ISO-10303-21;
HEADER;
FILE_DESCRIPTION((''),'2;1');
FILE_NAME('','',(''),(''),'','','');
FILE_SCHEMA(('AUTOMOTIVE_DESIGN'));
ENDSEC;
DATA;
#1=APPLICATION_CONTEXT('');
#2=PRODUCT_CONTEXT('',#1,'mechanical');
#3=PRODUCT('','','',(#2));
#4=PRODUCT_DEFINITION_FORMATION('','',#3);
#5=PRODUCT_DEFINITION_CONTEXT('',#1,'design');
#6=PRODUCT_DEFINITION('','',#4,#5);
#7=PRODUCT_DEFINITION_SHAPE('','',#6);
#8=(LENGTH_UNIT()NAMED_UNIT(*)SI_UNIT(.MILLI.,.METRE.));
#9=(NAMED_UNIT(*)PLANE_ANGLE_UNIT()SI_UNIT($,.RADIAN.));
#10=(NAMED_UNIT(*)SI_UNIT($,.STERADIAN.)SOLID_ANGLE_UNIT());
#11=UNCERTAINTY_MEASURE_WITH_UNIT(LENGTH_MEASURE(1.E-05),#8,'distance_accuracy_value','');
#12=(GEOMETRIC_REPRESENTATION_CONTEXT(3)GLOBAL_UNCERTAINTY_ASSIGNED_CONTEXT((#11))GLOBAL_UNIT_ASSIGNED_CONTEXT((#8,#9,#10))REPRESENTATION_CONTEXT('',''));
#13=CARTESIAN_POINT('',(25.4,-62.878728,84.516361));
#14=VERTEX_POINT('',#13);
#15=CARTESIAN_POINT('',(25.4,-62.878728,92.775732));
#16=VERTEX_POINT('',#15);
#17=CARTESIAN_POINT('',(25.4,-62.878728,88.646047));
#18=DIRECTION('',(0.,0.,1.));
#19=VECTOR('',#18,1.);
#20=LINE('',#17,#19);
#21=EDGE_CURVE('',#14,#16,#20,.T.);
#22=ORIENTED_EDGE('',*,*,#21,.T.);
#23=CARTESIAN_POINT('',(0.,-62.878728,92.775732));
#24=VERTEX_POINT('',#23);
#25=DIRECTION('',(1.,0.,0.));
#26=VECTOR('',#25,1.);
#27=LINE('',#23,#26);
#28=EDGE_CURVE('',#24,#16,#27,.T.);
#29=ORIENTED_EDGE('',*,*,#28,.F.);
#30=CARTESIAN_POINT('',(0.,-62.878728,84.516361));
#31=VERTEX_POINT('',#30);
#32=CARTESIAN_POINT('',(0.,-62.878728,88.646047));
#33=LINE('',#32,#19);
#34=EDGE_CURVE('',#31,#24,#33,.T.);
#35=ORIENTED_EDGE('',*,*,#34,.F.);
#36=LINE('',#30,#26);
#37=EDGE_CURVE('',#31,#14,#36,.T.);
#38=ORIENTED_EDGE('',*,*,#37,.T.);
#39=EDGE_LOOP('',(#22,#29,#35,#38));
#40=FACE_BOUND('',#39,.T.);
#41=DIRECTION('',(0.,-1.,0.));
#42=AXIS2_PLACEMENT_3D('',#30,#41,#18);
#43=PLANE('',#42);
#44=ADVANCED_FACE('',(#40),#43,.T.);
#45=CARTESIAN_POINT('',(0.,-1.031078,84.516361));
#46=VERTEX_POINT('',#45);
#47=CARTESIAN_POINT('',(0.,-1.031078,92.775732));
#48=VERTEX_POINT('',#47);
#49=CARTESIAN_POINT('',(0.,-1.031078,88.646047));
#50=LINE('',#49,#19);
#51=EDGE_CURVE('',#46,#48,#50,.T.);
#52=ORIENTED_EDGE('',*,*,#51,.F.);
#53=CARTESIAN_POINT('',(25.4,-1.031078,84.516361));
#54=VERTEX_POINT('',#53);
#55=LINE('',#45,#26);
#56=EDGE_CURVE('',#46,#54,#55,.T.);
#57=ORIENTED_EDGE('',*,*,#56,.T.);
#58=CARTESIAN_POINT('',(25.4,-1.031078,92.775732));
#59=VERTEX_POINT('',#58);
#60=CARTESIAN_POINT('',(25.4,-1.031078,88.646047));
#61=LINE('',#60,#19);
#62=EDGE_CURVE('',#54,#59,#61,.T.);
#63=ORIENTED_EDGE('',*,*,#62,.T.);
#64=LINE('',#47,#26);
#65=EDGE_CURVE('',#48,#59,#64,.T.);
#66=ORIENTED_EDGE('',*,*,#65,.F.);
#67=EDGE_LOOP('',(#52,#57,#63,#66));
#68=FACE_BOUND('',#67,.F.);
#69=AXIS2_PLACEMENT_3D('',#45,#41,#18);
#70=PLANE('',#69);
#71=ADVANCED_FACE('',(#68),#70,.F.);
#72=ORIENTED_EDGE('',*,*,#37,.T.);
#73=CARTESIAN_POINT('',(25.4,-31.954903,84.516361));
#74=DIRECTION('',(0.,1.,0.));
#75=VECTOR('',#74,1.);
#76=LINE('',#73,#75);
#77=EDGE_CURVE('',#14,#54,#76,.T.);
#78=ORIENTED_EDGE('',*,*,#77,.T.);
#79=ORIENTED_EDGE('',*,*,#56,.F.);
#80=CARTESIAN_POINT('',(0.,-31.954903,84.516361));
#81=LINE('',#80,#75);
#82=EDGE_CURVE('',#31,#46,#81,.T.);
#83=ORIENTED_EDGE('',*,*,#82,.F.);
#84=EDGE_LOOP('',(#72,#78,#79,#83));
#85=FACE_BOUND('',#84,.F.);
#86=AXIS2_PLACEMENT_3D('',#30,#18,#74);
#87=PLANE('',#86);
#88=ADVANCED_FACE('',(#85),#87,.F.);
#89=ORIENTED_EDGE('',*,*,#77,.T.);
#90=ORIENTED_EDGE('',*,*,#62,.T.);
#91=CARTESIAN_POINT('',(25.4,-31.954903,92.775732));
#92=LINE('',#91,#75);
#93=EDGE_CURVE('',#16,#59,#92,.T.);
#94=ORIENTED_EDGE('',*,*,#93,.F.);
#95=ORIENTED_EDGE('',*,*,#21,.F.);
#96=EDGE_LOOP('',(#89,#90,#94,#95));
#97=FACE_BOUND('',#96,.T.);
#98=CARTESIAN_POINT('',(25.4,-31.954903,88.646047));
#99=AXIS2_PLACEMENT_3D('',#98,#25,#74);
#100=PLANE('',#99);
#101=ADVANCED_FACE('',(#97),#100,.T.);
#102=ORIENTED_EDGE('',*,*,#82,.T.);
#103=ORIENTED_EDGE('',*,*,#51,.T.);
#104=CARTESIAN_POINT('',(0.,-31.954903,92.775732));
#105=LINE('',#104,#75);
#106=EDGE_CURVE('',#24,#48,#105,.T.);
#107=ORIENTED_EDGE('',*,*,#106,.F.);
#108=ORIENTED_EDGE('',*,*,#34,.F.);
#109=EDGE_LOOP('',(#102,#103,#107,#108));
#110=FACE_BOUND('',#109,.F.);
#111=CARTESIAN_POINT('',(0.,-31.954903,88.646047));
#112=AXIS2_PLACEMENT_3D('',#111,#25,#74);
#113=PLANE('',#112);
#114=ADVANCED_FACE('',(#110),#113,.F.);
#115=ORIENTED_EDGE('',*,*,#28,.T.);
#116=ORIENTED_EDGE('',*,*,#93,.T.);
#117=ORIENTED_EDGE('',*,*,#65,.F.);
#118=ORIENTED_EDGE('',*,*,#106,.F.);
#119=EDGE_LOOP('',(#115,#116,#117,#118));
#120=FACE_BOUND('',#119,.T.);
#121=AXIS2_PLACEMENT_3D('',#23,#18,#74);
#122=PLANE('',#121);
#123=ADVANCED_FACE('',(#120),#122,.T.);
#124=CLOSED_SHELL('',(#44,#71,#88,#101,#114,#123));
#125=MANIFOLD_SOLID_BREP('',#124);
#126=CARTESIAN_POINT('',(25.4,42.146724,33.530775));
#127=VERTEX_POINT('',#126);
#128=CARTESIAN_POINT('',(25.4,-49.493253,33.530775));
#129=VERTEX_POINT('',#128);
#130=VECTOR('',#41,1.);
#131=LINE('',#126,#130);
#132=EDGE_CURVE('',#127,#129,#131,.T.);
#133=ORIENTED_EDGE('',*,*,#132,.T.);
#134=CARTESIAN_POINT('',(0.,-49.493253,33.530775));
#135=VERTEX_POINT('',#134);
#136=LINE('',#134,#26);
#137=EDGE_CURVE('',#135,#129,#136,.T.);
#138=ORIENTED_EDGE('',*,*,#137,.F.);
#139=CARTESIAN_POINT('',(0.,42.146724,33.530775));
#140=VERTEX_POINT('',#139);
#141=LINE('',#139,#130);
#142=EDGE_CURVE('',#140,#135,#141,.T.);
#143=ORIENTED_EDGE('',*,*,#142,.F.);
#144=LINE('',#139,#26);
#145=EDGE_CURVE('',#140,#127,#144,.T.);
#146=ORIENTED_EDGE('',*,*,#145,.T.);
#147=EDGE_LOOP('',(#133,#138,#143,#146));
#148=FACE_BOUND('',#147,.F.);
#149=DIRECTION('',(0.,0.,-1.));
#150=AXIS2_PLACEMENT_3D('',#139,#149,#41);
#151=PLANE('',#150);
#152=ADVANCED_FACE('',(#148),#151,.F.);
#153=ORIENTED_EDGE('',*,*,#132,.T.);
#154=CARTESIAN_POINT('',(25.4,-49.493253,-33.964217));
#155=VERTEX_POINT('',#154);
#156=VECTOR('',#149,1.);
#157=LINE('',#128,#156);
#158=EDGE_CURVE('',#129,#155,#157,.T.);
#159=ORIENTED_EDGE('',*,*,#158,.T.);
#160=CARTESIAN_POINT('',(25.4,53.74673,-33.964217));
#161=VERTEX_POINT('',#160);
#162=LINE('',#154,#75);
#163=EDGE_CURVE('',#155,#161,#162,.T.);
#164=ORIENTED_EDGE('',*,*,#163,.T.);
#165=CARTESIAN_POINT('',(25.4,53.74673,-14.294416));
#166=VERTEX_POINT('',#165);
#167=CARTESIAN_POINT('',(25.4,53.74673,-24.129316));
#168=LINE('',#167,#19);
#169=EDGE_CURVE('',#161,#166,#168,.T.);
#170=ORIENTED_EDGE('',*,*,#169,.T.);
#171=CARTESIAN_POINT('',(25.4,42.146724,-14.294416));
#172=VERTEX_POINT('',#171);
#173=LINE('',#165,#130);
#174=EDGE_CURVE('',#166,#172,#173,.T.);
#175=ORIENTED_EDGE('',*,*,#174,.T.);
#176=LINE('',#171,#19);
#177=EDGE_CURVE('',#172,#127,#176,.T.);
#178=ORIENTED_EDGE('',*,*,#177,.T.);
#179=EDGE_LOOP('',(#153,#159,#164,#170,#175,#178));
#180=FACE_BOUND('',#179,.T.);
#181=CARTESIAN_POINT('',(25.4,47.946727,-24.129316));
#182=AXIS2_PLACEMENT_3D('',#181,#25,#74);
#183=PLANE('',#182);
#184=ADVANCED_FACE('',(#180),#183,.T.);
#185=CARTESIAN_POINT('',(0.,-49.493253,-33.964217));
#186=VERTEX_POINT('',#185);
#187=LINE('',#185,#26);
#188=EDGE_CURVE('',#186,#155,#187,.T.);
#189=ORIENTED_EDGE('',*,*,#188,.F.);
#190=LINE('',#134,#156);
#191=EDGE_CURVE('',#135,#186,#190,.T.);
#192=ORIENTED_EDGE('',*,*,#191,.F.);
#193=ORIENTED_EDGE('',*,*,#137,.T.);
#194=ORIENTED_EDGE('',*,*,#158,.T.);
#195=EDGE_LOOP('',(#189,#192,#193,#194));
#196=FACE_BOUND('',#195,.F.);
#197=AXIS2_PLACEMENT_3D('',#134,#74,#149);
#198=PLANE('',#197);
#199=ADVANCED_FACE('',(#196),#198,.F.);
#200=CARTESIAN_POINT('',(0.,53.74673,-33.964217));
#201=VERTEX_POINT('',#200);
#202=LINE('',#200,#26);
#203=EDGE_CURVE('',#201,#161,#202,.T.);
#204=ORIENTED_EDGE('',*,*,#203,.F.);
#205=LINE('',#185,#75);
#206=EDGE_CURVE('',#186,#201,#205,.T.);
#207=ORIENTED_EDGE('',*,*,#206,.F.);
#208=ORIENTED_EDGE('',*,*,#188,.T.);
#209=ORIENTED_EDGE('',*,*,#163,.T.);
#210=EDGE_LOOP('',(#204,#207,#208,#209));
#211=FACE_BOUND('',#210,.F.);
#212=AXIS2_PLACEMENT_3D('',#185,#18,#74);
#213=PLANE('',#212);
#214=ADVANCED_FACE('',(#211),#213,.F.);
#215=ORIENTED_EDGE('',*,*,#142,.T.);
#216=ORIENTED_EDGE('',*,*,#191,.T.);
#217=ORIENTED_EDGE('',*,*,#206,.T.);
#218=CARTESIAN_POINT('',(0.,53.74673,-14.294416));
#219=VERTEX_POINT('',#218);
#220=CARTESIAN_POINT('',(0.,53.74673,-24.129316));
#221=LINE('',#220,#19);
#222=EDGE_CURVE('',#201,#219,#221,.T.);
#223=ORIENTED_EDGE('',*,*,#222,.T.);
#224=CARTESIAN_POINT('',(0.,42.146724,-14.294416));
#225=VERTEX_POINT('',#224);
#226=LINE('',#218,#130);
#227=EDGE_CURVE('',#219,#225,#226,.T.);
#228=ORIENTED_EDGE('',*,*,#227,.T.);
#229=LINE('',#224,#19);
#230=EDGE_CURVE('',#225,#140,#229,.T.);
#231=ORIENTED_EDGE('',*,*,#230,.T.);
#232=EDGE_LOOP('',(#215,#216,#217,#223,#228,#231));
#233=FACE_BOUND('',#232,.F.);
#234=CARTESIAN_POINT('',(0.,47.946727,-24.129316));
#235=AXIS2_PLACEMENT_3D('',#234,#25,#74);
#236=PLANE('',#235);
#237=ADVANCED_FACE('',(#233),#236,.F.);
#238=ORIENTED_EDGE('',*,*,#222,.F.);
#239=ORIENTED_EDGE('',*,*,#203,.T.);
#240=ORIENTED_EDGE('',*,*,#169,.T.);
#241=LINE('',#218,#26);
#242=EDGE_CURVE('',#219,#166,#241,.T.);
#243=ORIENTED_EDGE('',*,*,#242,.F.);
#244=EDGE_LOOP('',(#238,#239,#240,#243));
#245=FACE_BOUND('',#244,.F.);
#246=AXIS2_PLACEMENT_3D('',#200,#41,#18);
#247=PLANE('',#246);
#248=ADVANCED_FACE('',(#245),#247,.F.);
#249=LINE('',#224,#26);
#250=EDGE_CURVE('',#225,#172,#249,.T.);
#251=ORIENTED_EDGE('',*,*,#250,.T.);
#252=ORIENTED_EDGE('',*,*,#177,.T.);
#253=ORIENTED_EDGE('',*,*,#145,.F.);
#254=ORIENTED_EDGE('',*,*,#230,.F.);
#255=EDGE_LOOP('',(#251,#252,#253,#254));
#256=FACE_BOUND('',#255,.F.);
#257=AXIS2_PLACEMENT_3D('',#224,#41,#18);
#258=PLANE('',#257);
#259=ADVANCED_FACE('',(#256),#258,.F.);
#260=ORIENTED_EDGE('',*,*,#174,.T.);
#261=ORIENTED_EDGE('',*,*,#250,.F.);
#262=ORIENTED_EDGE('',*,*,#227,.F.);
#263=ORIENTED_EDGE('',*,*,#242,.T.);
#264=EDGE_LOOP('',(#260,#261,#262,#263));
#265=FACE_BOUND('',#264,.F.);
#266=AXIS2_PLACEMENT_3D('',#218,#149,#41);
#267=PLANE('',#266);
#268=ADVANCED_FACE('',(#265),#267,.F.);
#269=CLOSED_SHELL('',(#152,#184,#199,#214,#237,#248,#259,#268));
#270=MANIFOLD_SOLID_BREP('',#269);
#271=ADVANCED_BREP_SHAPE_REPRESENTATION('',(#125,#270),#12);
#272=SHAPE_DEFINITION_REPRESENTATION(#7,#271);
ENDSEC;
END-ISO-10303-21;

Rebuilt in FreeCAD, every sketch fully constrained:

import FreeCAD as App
import Part
import Sketcher
from FreeCAD import Vector
Q = App.Units.Quantity


def add_polygon(sketch, points):
    """Adds a closed chain of lines whose ends are joined by coincident constraints."""
    first, n = sketch.GeometryCount, len(points)
    for a, b in zip(points, points[1:] + points[:1]):
        sketch.addGeometry(Part.LineSegment(App.Vector(*a, 0), App.Vector(*b, 0)), False)
    for i in range(n):
        sketch.addConstraint(Sketcher.Constraint("Coincident", first + i, 2, first + (i + 1) % n, 1))

doc = App.newDocument("Part")
body = doc.addObject("PartDesign::Body", "Body")

sketch1 = body.newObject("Sketcher::SketchObject", "Sketch")
sketch1.AttachmentSupport = (doc.getObject("YZ_Plane"), [""])
sketch1.MapMode = "FlatFace"
add_polygon(sketch1, [(54, -34), (54, -14), (42, -14), (42, 34), (-49, 34), (-49, -34)])
sketch1.addConstraint([
    Sketcher.Constraint("Vertical", 0),
    Sketcher.Constraint("Horizontal", 1),
    Sketcher.Constraint("Vertical", 2),
    Sketcher.Constraint("Horizontal", 3),
    Sketcher.Constraint("Vertical", 4),
    Sketcher.Constraint("Horizontal", 5),
    Sketcher.Constraint("DistanceY", 0, 1, 0, 2, Q("19.669801 mm")),
    Sketcher.Constraint("DistanceY", 2, 1, 2, 2, Q("47.825191 mm")),
    Sketcher.Constraint("DistanceX", 1, 2, 1, 1, Q("11.600006 mm")),
    Sketcher.Constraint("DistanceX", 3, 2, 3, 1, Q("91.639977 mm")),
    Sketcher.Constraint("DistanceX", -1, 1, 0, 2, Q("53.74673 mm")),
    Sketcher.Constraint("DistanceY", 0, 2, -1, 1, Q("14.294416 mm")),
])
pad1 = body.newObject("PartDesign::Pad", "Pad")
pad1.Profile = sketch1
pad1.Length = Q("1 in")
body2 = doc.addObject("PartDesign::Body", "Body001")

sketch2 = body2.newObject("Sketcher::SketchObject", "Sketch001")
sketch2.AttachmentSupport = (doc.getObject("YZ_Plane001"), [""])
sketch2.MapMode = "FlatFace"
add_polygon(sketch2, [(-63, 93), (-63, 85), (-1, 85), (-1, 93)])
sketch2.addConstraint([
    Sketcher.Constraint("Vertical", 0),
    Sketcher.Constraint("Horizontal", 1),
    Sketcher.Constraint("Vertical", 2),
    Sketcher.Constraint("Horizontal", 3),
    Sketcher.Constraint("DistanceX", 1, 1, 1, 2, Q("61.84765 mm")),
    Sketcher.Constraint("DistanceY", 0, 2, 0, 1, Q("8.259371 mm")),
    Sketcher.Constraint("DistanceY", -1, 1, 0, 2, Q("84.516361 mm")),
    Sketcher.Constraint("DistanceX", 1, 2, -1, 1, Q("1.031078 mm")),
])
pad2 = body2.newObject("PartDesign::Pad", "Pad001")
pad2.Profile = sketch2
pad2.Length = Q("1 in")

doc.recompute()
